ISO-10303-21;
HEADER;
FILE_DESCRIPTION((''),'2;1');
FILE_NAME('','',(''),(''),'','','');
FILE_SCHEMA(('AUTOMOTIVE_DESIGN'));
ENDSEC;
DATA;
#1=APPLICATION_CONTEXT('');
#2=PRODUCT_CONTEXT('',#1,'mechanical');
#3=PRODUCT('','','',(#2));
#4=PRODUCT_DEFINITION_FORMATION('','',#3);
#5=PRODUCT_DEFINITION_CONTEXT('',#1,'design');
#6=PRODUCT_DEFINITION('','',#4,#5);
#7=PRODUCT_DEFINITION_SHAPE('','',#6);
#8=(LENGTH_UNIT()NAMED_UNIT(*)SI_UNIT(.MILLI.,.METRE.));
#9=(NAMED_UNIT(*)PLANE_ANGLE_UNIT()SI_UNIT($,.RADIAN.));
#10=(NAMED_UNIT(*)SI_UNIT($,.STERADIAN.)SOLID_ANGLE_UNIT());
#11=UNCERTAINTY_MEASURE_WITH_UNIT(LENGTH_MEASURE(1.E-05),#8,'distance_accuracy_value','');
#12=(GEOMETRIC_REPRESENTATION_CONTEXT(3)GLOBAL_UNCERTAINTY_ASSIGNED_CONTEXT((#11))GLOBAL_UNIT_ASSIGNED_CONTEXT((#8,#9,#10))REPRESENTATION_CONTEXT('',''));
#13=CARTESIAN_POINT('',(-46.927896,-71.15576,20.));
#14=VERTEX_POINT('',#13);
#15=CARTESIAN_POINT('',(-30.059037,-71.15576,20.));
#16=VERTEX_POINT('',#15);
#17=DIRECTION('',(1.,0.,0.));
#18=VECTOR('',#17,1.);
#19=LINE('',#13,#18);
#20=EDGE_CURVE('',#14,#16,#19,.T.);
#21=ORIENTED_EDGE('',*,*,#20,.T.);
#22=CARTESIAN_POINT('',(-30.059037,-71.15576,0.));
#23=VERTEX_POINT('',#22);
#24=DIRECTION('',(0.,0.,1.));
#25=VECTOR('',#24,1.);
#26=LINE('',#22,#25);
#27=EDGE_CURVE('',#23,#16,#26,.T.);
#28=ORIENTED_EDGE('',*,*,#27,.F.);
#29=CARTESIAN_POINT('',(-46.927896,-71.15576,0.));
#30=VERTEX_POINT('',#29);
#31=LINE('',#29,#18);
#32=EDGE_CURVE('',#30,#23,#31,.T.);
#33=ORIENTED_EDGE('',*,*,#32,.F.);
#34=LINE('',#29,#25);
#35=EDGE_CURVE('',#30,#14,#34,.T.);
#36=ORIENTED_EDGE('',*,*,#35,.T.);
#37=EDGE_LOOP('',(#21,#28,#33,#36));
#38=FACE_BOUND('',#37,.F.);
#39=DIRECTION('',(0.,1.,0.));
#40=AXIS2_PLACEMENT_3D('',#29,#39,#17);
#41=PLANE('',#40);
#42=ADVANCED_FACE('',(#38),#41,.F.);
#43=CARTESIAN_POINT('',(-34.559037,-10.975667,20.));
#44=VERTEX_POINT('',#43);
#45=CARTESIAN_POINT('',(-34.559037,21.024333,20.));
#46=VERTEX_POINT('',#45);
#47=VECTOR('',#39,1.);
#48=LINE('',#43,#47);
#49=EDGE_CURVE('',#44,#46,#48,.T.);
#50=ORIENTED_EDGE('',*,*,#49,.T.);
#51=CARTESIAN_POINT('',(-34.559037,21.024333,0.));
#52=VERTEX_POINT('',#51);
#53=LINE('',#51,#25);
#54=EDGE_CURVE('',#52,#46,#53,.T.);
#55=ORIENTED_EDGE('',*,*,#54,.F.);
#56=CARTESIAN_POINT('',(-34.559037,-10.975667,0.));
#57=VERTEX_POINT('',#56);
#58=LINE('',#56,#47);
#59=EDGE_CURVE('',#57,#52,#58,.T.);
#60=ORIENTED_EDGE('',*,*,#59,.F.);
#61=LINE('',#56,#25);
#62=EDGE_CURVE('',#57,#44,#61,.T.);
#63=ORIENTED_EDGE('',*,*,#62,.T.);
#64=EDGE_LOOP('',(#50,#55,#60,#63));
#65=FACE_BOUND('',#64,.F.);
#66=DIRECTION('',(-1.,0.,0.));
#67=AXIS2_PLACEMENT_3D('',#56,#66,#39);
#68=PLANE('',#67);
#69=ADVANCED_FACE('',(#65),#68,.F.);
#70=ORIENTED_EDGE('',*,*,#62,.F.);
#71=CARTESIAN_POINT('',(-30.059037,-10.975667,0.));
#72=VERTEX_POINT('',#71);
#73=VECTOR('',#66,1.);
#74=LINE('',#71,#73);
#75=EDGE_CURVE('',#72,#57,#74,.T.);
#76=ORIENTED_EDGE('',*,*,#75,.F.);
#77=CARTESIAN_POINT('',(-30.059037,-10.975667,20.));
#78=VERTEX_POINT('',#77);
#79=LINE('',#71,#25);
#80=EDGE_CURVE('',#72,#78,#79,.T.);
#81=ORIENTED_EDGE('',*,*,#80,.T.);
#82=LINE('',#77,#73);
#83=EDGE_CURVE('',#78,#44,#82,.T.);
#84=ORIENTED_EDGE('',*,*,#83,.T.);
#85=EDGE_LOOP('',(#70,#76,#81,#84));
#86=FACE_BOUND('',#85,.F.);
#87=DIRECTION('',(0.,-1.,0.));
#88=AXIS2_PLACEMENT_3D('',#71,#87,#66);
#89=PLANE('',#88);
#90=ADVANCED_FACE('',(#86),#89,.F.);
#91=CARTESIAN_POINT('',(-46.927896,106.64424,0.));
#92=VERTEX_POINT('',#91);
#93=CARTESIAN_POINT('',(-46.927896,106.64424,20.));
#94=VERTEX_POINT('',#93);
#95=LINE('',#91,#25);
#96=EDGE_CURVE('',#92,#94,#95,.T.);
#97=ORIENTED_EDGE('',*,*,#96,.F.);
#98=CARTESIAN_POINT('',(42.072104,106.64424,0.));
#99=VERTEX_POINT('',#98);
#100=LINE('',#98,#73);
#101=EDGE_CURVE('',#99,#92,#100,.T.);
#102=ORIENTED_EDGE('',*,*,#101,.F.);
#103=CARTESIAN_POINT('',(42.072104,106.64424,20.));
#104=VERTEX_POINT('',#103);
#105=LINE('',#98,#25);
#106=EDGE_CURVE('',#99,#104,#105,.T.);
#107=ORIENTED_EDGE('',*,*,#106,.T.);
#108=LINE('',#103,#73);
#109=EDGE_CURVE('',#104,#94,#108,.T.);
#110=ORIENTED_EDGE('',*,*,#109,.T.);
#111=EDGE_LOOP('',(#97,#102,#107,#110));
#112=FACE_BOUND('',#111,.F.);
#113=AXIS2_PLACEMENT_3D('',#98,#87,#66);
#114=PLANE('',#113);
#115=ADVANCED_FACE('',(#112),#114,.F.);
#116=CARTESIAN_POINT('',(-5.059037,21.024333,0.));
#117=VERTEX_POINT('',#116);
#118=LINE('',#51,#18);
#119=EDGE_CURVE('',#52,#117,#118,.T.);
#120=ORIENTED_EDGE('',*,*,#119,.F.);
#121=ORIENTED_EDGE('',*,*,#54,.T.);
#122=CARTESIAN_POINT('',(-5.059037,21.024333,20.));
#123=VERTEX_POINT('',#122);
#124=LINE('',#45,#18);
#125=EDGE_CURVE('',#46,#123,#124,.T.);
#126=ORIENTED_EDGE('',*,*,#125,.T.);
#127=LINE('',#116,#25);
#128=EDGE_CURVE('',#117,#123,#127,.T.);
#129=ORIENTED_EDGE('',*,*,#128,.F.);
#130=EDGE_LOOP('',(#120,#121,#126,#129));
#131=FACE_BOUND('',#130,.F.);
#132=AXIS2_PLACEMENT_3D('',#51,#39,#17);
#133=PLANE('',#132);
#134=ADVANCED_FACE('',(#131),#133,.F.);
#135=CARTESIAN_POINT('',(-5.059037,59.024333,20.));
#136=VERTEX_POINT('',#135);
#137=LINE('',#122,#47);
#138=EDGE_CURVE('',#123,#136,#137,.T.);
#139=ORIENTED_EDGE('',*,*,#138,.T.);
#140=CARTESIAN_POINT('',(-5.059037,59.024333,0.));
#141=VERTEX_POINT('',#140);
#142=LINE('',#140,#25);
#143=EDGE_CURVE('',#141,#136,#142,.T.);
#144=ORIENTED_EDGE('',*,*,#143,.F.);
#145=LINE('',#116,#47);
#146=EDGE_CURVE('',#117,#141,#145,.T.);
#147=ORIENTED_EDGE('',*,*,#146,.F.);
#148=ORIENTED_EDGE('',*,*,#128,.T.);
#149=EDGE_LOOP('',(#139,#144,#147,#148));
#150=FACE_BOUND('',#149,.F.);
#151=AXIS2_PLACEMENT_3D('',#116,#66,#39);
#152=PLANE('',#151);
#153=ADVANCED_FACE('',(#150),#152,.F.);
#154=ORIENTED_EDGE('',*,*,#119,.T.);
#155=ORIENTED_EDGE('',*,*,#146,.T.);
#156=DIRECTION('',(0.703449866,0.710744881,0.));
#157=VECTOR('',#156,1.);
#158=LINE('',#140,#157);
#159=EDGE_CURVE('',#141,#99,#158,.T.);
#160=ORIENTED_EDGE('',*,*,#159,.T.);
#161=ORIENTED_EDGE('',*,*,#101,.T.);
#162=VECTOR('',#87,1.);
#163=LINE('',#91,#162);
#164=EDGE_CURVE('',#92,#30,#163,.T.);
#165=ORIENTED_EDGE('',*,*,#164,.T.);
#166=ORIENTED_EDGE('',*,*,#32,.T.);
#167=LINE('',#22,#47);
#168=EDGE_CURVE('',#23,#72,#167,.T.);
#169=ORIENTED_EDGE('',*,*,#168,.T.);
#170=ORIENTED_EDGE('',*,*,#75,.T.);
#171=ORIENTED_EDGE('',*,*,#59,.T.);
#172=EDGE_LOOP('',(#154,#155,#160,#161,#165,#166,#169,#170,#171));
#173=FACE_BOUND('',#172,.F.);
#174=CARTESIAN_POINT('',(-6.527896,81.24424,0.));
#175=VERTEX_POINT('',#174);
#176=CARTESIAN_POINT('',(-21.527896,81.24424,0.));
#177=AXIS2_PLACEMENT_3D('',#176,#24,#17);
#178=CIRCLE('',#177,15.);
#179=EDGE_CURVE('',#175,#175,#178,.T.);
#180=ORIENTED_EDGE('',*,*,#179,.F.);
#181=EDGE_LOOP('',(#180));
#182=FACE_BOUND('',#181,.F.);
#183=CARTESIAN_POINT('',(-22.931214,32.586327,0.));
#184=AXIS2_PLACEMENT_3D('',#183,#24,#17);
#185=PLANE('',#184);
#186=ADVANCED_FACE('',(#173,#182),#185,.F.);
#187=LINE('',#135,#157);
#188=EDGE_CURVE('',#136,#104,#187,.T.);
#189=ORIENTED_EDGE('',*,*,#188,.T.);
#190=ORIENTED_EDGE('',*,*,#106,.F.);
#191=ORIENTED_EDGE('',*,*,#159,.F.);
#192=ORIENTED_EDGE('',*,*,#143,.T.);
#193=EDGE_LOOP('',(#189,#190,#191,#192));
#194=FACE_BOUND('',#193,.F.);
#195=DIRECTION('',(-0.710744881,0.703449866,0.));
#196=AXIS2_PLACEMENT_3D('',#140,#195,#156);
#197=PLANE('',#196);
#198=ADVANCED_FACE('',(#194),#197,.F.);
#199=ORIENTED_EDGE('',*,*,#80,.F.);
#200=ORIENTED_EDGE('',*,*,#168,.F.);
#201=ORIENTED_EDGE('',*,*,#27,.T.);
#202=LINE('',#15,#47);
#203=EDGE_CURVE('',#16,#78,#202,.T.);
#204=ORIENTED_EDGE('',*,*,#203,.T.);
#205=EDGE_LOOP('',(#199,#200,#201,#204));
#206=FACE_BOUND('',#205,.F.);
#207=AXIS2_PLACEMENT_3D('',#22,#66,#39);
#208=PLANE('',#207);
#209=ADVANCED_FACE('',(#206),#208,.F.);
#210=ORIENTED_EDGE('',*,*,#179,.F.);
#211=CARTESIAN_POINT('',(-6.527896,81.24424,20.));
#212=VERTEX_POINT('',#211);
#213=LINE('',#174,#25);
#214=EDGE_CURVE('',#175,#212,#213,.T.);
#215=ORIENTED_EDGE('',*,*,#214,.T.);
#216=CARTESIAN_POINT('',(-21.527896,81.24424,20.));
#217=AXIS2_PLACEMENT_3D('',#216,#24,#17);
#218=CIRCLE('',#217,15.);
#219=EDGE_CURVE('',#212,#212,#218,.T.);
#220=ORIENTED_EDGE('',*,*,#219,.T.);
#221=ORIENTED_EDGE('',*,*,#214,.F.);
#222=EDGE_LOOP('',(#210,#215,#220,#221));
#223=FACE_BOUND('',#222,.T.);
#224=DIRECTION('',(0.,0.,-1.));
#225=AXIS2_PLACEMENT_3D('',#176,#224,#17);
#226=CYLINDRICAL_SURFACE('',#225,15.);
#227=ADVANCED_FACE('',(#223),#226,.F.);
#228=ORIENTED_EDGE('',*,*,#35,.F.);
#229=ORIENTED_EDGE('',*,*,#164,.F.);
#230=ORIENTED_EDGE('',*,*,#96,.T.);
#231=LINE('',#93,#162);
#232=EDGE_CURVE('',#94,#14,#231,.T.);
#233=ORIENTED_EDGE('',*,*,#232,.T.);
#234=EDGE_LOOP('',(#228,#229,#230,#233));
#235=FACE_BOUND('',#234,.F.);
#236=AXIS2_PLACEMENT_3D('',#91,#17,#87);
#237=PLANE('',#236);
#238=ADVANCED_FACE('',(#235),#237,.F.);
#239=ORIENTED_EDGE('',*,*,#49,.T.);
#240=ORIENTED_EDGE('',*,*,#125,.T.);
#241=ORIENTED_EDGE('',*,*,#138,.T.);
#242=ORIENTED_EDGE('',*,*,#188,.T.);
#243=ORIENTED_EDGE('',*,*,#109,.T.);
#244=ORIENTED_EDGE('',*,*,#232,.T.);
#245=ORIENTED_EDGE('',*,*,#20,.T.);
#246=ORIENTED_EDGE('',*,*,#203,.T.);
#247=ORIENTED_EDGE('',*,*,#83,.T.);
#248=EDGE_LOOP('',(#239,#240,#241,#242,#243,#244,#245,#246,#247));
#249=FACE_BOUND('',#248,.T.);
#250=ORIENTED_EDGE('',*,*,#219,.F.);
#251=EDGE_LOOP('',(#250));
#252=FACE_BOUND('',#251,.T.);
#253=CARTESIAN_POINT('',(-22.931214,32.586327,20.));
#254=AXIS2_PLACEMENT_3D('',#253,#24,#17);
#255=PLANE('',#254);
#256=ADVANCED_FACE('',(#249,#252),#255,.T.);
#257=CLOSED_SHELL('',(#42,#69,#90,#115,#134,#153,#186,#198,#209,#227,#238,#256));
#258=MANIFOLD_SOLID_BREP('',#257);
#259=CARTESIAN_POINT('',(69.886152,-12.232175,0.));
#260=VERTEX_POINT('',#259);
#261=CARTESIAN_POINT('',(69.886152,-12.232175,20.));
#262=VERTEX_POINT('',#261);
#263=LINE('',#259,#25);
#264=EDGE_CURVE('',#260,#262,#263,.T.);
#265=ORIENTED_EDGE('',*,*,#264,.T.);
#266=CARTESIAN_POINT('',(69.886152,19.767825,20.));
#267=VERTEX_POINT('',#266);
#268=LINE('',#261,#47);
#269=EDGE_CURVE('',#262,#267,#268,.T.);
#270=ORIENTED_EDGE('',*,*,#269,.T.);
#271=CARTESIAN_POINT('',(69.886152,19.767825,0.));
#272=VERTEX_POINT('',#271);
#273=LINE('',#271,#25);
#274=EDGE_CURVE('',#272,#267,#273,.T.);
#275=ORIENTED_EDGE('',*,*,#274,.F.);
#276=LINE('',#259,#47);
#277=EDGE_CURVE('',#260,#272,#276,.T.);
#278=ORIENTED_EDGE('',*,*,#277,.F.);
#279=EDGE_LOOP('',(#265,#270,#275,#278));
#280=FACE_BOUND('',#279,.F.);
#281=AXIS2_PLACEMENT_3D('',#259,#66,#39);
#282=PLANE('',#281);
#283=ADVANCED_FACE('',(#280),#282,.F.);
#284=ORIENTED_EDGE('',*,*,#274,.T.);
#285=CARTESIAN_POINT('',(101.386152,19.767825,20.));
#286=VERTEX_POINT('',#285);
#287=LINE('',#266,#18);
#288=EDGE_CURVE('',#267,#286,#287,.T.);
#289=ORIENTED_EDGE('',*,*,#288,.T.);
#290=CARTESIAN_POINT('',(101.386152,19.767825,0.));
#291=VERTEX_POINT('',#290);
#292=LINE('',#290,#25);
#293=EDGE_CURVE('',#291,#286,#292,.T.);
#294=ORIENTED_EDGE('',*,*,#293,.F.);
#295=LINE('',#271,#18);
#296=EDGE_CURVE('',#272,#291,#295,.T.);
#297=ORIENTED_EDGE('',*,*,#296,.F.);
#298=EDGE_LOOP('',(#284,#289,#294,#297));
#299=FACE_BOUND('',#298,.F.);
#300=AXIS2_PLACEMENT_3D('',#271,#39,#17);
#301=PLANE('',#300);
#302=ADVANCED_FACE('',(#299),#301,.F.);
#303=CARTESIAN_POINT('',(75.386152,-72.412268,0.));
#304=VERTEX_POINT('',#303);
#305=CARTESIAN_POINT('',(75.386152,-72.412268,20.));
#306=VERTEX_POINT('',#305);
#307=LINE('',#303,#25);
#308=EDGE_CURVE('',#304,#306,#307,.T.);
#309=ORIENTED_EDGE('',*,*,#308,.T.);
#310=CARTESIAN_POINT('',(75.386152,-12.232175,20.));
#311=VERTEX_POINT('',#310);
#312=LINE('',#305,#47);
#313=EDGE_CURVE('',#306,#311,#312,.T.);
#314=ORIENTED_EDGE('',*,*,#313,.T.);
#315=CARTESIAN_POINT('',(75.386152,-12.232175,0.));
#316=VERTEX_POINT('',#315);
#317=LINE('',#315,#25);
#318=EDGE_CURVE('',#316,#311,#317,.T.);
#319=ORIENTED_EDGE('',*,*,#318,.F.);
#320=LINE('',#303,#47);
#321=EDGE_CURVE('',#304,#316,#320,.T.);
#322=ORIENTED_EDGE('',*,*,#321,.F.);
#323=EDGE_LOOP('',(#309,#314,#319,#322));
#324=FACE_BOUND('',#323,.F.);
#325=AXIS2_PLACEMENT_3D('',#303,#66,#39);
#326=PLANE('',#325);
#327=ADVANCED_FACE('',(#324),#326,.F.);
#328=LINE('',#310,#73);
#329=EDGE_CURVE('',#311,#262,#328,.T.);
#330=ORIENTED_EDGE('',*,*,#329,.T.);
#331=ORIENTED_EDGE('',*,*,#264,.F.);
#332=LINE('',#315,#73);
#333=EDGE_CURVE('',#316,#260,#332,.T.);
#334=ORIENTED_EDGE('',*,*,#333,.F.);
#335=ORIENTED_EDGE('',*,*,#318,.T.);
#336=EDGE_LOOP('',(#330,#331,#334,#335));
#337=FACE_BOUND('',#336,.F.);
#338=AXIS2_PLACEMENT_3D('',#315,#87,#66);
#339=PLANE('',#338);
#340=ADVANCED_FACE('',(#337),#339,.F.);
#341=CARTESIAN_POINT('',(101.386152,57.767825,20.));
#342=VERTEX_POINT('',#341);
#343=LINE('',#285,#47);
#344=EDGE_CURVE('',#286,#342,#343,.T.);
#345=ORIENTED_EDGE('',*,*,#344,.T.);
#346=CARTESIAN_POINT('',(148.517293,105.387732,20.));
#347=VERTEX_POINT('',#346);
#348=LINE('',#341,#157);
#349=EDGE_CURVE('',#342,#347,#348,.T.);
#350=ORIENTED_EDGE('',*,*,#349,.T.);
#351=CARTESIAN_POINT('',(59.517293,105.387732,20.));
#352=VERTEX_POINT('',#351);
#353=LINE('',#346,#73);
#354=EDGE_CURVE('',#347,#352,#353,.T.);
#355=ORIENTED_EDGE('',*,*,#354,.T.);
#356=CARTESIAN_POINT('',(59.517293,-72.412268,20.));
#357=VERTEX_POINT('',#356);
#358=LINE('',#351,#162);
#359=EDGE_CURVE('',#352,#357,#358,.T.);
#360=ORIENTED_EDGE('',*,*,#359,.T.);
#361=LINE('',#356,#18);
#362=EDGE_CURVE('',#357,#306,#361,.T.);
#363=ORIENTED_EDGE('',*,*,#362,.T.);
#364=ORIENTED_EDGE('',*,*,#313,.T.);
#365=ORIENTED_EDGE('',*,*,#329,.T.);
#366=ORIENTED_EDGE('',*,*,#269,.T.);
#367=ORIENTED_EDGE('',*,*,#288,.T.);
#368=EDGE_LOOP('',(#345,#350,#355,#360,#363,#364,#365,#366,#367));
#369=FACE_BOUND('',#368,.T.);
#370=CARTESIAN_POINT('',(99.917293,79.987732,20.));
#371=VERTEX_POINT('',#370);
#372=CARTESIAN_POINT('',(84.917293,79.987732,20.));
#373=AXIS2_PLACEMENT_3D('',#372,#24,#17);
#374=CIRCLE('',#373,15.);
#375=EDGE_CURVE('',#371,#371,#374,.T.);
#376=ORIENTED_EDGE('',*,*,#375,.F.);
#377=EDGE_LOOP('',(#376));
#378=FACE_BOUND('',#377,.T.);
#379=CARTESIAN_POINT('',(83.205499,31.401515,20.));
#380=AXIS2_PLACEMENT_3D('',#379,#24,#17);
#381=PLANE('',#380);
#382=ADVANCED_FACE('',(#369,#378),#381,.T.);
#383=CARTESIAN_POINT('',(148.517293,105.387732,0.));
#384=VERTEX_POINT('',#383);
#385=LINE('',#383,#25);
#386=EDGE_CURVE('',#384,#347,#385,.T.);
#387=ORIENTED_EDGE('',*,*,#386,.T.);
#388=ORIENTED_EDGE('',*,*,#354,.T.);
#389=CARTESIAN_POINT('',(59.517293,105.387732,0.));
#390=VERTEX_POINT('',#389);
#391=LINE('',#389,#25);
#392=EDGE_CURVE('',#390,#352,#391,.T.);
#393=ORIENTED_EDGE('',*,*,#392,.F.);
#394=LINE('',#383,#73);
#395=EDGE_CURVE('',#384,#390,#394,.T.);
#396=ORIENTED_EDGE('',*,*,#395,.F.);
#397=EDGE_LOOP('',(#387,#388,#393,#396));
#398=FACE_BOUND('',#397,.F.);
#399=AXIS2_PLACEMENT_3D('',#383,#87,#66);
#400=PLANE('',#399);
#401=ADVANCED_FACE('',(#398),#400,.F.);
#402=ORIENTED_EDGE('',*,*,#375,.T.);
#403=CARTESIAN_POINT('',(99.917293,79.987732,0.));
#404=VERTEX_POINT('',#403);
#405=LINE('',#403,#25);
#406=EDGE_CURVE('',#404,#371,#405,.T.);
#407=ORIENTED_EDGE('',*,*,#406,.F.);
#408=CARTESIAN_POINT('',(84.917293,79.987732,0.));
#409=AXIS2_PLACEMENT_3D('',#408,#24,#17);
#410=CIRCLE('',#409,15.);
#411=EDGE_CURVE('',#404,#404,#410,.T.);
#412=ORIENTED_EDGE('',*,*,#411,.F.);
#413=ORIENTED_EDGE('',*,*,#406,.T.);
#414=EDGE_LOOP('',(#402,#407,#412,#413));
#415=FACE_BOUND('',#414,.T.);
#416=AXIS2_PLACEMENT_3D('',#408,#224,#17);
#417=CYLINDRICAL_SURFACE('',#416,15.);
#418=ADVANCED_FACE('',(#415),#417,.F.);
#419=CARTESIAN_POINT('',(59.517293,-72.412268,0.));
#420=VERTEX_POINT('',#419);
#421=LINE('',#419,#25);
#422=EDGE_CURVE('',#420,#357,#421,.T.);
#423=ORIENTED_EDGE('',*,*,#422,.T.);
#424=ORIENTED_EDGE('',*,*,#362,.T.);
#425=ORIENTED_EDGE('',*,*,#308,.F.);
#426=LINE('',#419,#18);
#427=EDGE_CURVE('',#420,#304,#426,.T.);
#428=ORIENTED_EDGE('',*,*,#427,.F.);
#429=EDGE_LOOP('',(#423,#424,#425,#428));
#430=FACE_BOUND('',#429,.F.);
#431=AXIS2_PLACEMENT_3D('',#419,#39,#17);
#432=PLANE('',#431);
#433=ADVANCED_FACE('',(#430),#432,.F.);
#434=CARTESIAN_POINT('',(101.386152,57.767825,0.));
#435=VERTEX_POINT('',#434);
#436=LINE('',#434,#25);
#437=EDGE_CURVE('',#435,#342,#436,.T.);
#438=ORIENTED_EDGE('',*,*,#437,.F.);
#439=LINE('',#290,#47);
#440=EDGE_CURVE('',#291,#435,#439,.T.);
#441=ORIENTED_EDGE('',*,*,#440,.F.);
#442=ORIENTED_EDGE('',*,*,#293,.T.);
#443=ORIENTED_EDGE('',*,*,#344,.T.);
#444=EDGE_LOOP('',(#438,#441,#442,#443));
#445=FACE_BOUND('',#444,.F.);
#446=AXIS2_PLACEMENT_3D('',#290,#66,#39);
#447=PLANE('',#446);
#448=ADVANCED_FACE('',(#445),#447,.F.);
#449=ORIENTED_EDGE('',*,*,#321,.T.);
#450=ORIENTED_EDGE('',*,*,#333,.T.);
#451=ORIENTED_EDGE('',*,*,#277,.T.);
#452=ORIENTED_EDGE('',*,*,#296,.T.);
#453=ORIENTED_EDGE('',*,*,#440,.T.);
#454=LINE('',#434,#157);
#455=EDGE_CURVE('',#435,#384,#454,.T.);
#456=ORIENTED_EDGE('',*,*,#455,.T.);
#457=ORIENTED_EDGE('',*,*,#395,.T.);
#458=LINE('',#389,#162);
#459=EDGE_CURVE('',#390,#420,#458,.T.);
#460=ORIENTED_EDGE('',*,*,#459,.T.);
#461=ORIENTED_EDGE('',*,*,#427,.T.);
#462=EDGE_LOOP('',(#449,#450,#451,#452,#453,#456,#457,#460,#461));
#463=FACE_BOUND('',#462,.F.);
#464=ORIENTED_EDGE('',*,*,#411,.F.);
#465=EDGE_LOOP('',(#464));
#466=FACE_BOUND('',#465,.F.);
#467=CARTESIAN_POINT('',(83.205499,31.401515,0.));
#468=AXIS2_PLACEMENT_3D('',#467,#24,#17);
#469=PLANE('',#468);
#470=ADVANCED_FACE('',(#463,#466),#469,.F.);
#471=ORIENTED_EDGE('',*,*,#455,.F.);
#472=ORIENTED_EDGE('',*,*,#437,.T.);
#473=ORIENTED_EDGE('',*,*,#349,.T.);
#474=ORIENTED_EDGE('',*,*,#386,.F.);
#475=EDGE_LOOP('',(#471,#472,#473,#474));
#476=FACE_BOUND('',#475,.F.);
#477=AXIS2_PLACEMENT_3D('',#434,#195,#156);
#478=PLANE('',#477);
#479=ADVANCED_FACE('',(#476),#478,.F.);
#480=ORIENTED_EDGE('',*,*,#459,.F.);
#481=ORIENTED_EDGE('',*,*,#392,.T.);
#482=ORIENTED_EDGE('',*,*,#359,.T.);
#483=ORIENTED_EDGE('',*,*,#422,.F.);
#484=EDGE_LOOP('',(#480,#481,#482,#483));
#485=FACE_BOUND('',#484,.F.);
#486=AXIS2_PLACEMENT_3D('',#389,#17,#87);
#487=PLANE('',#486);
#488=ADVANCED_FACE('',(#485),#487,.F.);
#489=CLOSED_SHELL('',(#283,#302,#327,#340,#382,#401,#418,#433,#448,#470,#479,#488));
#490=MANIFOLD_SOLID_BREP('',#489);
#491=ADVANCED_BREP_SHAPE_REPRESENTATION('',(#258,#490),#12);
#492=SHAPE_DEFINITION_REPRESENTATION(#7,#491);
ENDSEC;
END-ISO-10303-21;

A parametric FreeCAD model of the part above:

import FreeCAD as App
import Part
import Sketcher
Q = App.Units.Quantity


def add_polygon(sketch, points):
    """Adds a closed chain of lines whose ends are joined by coincident constraints."""
    first, n = sketch.GeometryCount, len(points)
    for a, b in zip(points, points[1:] + points[:1]):
        sketch.addGeometry(Part.LineSegment(App.Vector(*a, 0), App.Vector(*b, 0)), False)
    for i in range(n):
        sketch.addConstraint(Sketcher.Constraint("Coincident", first + i, 2, first + (i + 1) % n, 1))

doc = App.newDocument("Part")
body = doc.addObject("PartDesign::Body", "Body")

sketch1 = body.newObject("Sketcher::SketchObject", "Sketch")
sketch1.AttachmentSupport = (doc.getObject("XY_Plane"), [""])
sketch1.MapMode = "FlatFace"
add_polygon(sketch1, [(42.1, 106.6), (-46.9, 106.6), (-46.9, -71.2), (-30.1, -71.2), (-30.1, -11), (-34.6, -11), (-34.6, 21), (-5.1, 21), (-5.1, 59)])
sketch1.addGeometry(Part.Circle(App.Vector(-21.5, 81.2, 0), App.Vector(0, 0, 1), 15), False)
sketch1.addConstraint([
    Sketcher.Constraint("Horizontal", 0),
    Sketcher.Constraint("Vertical", 1),
    Sketcher.Constraint("Horizontal", 2),
    Sketcher.Constraint("Vertical", 3),
    Sketcher.Constraint("Horizontal", 4),
    Sketcher.Constraint("Vertical", 5),
    Sketcher.Constraint("Horizontal", 6),
    Sketcher.Constraint("Vertical", 7),
    Sketcher.Constraint("Diameter", 9, Q("30 mm")),
    Sketcher.Constraint("DistanceX", 0, 2, 0, 1, Q("89 mm")),
    Sketcher.Constraint("DistanceY", 5, 1, 5, 2, Q("32 mm")),
    Sketcher.Constraint("DistanceY", 7, 1, 7, 2, Q("38 mm")),
    Sketcher.Constraint("Distance", 8, Q("67 mm")),
    Sketcher.Constraint("DistanceX", 4, 2, 4, 1, Q("4.5 mm")),
    Sketcher.Constraint("DistanceX", 6, 1, 6, 2, Q("29.5 mm")),
    Sketcher.Constraint("DistanceY", 1, 2, 1, 1, Q("177.8 mm")),
    Sketcher.Constraint("DistanceX", 0, 2, 9, 3, Q("25.4 mm")),
    Sketcher.Constraint("DistanceY", 9, 3, 0, 2, Q("25.4 mm")),
    Sketcher.Constraint("DistanceX", 2, 1, 2, 2, Q("16.868859 mm")),
    Sketcher.Constraint("DistanceY", -1, 1, 9, 3, Q("81.24424 mm")),
    Sketcher.Constraint("DistanceX", 9, 3, -1, 1, Q("21.527896 mm")),
])
pad1 = body.newObject("PartDesign::Pad", "Pad")
pad1.Profile = sketch1
pad1.Length = 20
body2 = doc.addObject("PartDesign::Body", "Body001")

sketch2 = body2.newObject("Sketcher::SketchObject", "Sketch001")
sketch2.AttachmentSupport = (doc.getObject("XY_Plane001"), [""])
sketch2.MapMode = "FlatFace"
add_polygon(sketch2, [(149, 105), (60, 105), (60, -72), (75, -72), (75, -12), (70, -12), (70, 20), (101, 20), (101, 58)])
sketch2.addGeometry(Part.Circle(App.Vector(85, 80, 0), App.Vector(0, 0, 1), 15), False)
sketch2.addConstraint([
    Sketcher.Constraint("Horizontal", 0),
    Sketcher.Constraint("Vertical", 1),
    Sketcher.Constraint("Horizontal", 2),
    Sketcher.Constraint("Vertical", 3),
    Sketcher.Constraint("Horizontal", 4),
    Sketcher.Constraint("Vertical", 5),
    Sketcher.Constraint("Horizontal", 6),
    Sketcher.Constraint("Vertical", 7),
    Sketcher.Constraint("Diameter", 9, Q("30 mm")),
    Sketcher.Constraint("DistanceX", 0, 2, 0, 1, Q("89 mm")),
    Sketcher.Constraint("DistanceY", 5, 1, 5, 2, Q("32 mm")),
    Sketcher.Constraint("DistanceY", 7, 1, 7, 2, Q("38 mm")),
    Sketcher.Constraint("Distance", 8, Q("67 mm")),
    Sketcher.Constraint("DistanceX", 4, 2, 4, 1, Q("5.5 mm")),
    Sketcher.Constraint("DistanceX", 6, 1, 6, 2, Q("31.5 mm")),
    Sketcher.Constraint("DistanceY", 1, 2, 1, 1, Q("177.8 mm")),
    Sketcher.Constraint("DistanceX", 0, 2, 9, 3, Q("25.4 mm")),
    Sketcher.Constraint("DistanceY", 9, 3, 0, 2, Q("25.4 mm")),
    Sketcher.Constraint("DistanceX", 2, 1, 2, 2, Q("15.868859 mm")),
    Sketcher.Constraint("DistanceY", -1, 1, 9, 3, Q("79.987732 mm")),
    Sketcher.Constraint("DistanceX", -1, 1, 2, 2, Q("75.386152 mm")),
])
pad2 = body2.newObject("PartDesign::Pad", "Pad001")
pad2.Profile = sketch2
pad2.Length = 20

doc.recompute()
